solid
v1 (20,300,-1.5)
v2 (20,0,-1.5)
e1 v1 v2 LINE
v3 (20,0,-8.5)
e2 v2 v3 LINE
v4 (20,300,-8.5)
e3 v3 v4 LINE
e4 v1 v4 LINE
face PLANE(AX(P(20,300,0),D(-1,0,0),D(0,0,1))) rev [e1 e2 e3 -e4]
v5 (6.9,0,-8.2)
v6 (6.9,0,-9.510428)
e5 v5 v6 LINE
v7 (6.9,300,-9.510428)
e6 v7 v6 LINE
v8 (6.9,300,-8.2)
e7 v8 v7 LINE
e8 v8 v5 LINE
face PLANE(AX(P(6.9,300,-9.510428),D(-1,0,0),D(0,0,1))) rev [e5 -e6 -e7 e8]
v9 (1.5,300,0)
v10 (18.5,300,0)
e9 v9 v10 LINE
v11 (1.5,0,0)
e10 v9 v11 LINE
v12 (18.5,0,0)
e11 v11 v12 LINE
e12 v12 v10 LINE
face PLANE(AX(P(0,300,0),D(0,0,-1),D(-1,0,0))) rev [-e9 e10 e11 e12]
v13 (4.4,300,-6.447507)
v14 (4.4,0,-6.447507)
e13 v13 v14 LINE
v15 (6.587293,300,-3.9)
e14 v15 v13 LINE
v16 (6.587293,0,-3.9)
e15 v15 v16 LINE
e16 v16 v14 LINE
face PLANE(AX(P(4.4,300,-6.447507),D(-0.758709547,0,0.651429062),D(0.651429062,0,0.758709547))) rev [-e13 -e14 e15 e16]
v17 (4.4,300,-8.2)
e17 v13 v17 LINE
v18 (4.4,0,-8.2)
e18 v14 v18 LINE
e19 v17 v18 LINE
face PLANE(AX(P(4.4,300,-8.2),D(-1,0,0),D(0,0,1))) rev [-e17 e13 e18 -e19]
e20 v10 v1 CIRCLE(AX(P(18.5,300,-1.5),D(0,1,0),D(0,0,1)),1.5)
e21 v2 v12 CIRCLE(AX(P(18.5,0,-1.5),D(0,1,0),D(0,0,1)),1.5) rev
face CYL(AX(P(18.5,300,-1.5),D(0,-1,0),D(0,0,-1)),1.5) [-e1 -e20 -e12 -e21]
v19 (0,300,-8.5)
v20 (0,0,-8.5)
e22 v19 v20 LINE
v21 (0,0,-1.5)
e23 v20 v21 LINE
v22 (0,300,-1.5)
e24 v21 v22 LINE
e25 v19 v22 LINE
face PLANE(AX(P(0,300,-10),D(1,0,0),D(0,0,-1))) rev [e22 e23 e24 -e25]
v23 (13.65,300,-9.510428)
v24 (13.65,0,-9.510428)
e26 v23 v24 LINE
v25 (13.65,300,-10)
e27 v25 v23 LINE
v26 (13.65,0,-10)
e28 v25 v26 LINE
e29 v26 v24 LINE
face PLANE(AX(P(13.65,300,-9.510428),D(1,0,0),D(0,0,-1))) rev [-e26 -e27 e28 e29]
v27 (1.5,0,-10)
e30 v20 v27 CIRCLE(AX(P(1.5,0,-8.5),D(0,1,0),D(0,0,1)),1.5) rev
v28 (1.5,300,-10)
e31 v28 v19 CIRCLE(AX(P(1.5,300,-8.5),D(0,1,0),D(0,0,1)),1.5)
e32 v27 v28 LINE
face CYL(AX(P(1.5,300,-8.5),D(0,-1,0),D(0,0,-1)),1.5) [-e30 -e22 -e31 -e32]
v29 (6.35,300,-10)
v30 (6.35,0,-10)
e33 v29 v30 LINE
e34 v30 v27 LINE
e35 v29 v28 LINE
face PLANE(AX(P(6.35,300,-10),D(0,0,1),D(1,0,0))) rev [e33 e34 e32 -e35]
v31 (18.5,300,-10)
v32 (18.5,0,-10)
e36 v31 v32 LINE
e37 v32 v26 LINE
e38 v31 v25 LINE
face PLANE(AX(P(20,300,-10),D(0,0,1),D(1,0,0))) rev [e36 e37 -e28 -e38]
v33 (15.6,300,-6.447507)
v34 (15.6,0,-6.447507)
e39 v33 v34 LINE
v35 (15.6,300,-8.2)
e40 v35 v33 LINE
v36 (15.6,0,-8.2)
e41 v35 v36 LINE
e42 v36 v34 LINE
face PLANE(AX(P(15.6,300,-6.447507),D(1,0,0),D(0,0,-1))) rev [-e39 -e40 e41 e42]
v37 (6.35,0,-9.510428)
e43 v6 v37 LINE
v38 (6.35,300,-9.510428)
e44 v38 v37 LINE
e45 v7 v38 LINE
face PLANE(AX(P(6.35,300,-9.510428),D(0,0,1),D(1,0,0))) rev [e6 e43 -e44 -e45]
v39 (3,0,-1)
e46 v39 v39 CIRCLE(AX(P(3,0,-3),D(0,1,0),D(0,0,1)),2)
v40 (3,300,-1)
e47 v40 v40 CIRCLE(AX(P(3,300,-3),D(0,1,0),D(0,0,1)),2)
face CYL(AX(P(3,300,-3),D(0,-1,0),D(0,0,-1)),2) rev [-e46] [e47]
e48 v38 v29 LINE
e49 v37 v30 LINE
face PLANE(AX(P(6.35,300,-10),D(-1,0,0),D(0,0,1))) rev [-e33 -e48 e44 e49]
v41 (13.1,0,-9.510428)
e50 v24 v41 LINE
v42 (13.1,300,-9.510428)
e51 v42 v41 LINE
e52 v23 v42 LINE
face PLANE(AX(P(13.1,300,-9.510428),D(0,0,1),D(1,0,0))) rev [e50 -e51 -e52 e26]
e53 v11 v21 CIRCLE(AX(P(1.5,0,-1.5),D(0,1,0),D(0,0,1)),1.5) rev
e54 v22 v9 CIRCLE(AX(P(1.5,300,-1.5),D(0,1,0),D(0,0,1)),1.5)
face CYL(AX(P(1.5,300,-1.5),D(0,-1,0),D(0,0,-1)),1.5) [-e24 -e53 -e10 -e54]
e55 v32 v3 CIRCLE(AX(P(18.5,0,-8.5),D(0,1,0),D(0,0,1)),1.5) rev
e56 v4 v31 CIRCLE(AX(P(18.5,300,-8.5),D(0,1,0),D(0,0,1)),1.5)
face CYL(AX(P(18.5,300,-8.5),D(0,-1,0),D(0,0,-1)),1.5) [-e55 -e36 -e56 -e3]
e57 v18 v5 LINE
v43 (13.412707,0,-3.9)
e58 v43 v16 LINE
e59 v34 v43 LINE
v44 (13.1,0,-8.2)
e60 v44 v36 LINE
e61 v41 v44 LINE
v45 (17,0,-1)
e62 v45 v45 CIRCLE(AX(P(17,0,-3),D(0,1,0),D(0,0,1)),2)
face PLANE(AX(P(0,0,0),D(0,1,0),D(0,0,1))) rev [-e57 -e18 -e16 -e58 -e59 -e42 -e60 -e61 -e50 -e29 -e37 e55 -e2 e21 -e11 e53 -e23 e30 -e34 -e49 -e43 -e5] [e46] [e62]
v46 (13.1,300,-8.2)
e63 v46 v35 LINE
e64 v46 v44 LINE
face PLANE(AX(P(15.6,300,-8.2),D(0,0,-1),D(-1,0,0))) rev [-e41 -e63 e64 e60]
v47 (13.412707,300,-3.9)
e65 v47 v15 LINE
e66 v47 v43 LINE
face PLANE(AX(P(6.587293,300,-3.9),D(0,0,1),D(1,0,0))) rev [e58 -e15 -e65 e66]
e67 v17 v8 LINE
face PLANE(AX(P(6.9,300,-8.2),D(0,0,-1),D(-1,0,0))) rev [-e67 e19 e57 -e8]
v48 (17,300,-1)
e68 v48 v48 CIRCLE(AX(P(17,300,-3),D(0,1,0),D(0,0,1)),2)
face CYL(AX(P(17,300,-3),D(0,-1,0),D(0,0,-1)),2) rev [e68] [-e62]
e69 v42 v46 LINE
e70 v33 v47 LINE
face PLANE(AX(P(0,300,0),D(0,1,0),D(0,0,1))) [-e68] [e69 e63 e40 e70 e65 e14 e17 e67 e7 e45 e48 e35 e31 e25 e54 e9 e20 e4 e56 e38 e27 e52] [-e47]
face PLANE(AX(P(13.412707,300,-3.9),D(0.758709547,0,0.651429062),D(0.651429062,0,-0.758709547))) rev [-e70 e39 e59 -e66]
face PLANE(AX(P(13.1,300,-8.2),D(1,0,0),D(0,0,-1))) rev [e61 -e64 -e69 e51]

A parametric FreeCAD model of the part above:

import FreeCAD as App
import Part
import Sketcher


def edges_at(feature, points):
    """Names of the edges that pass closest to the given points."""
    edges = feature.Shape.Edges
    near = lambda p: min(range(len(edges)), key=lambda i: edges[i].distToShape(Part.Vertex(*p))[0])
    return sorted({f"Edge{near(p) + 1}" for p in points})

doc = App.newDocument("Part")
params = doc.addObject("Spreadsheet::Sheet", "Params")
for row, (alias, value) in enumerate([
    ("sketch1_diameter", "4 mm"),
    ("sketch1_width", "20 mm"),
    ("sketch1_height", "10 mm"),
    ("sketch1_width2", "2.5 mm"),
    ("sketch1_width3", "6.35 mm"),
    ("pad1_length", "300 mm"),
    ("fillet_radius", "1.5 mm"),
], start=1):
    params.set(f"A{row}", alias)
    params.set(f"B{row}", "=" + value)
    params.setAlias(f"B{row}", alias)

body = doc.addObject("PartDesign::Body", "Body")

sketch1 = doc.addObject("Sketcher::SketchObject", "Sketch")
body.addObject(sketch1)
sketch1.AttachmentSupport = (doc.XZ_Plane, [""])
sketch1.MapMode = "FlatFace"
sketch1.addGeometry(Part.LineSegment(App.Vector(0, 0, 0), App.Vector(20, 0, 0)), False)
sketch1.addGeometry(Part.LineSegment(App.Vector(20, 0, 0), App.Vector(20, -10, 0)), False)
sketch1.addGeometry(Part.LineSegment(App.Vector(20, -10, 0), App.Vector(13.65, -10, 0)), False)
sketch1.addGeometry(Part.LineSegment(App.Vector(13.65, -10, 0), App.Vector(13.65, -9.510428, 0)), False)
sketch1.addGeometry(Part.LineSegment(App.Vector(13.65, -9.510428, 0), App.Vector(13.1, -9.510428, 0)), False)
sketch1.addGeometry(Part.LineSegment(App.Vector(13.1, -9.510428, 0), App.Vector(13.1, -8.2, 0)), False)
sketch1.addGeometry(Part.LineSegment(App.Vector(13.1, -8.2, 0), App.Vector(15.6, -8.2, 0)), False)
sketch1.addGeometry(Part.LineSegment(App.Vector(15.6, -8.2, 0), App.Vector(15.6, -6.447507, 0)), False)
sketch1.addGeometry(Part.LineSegment(App.Vector(15.6, -6.447507, 0), App.Vector(13.412707, -3.9, 0)), False)
sketch1.addGeometry(Part.LineSegment(App.Vector(13.412707, -3.9, 0), App.Vector(6.587293, -3.9, 0)), False)
sketch1.addGeometry(Part.LineSegment(App.Vector(6.587293, -3.9, 0), App.Vector(4.4, -6.447507, 0)), False)
sketch1.addGeometry(Part.LineSegment(App.Vector(4.4, -6.447507, 0), App.Vector(4.4, -8.2, 0)), False)
sketch1.addGeometry(Part.LineSegment(App.Vector(4.4, -8.2, 0), App.Vector(6.9, -8.2, 0)), False)
sketch1.addGeometry(Part.LineSegment(App.Vector(6.9, -8.2, 0), App.Vector(6.9, -9.510428, 0)), False)
sketch1.addGeometry(Part.LineSegment(App.Vector(6.9, -9.510428, 0), App.Vector(6.35, -9.510428, 0)), False)
sketch1.addGeometry(Part.LineSegment(App.Vector(6.35, -9.510428, 0), App.Vector(6.35, -10, 0)), False)
sketch1.addGeometry(Part.LineSegment(App.Vector(6.35, -10, 0), App.Vector(0, -10, 0)), False)
sketch1.addGeometry(Part.LineSegment(App.Vector(0, -10, 0), App.Vector(0, 0, 0)), False)
sketch1.addGeometry(Part.Circle(App.Vector(3, -3, 0), App.Vector(0, 0, 1), 2), False)
sketch1.addGeometry(Part.Circle(App.Vector(17, -3, 0), App.Vector(0, 0, 1), 2), False)
sketch1.addConstraint(Sketcher.Constraint("Coincident", 0, 2, 1, 1))
sketch1.addConstraint(Sketcher.Constraint("Coincident", 1, 2, 2, 1))
sketch1.addConstraint(Sketcher.Constraint("Coincident", 2, 2, 3, 1))
sketch1.addConstraint(Sketcher.Constraint("Coincident", 3, 2, 4, 1))
sketch1.addConstraint(Sketcher.Constraint("Coincident", 4, 2, 5, 1))
sketch1.addConstraint(Sketcher.Constraint("Coincident", 5, 2, 6, 1))
sketch1.addConstraint(Sketcher.Constraint("Coincident", 6, 2, 7, 1))
sketch1.addConstraint(Sketcher.Constraint("Coincident", 7, 2, 8, 1))
sketch1.addConstraint(Sketcher.Constraint("Coincident", 8, 2, 9, 1))
sketch1.addConstraint(Sketcher.Constraint("Coincident", 9, 2, 10, 1))
sketch1.addConstraint(Sketcher.Constraint("Coincident", 10, 2, 11, 1))
sketch1.addConstraint(Sketcher.Constraint("Coincident", 11, 2, 12, 1))
sketch1.addConstraint(Sketcher.Constraint("Coincident", 12, 2, 13, 1))
sketch1.addConstraint(Sketcher.Constraint("Coincident", 13, 2, 14, 1))
sketch1.addConstraint(Sketcher.Constraint("Coincident", 14, 2, 15, 1))
sketch1.addConstraint(Sketcher.Constraint("Coincident", 15, 2, 16, 1))
sketch1.addConstraint(Sketcher.Constraint("Coincident", 16, 2, 17, 1))
sketch1.addConstraint(Sketcher.Constraint("Coincident", 17, 2, 0, 1))
sketch1.addConstraint(Sketcher.Constraint("Horizontal", 0))
sketch1.addConstraint(Sketcher.Constraint("Vertical", 1))
sketch1.addConstraint(Sketcher.Constraint("Horizontal", 2))
sketch1.addConstraint(Sketcher.Constraint("Vertical", 3))
sketch1.addConstraint(Sketcher.Constraint("Horizontal", 4))
sketch1.addConstraint(Sketcher.Constraint("Vertical", 5))
sketch1.addConstraint(Sketcher.Constraint("Horizontal", 6))
sketch1.addConstraint(Sketcher.Constraint("Vertical", 7))
sketch1.addConstraint(Sketcher.Constraint("Horizontal", 9))
sketch1.addConstraint(Sketcher.Constraint("Vertical", 11))
sketch1.addConstraint(Sketcher.Constraint("Horizontal", 12))
sketch1.addConstraint(Sketcher.Constraint("Vertical", 13))
sketch1.addConstraint(Sketcher.Constraint("Horizontal", 14))
sketch1.addConstraint(Sketcher.Constraint("Vertical", 15))
sketch1.addConstraint(Sketcher.Constraint("Horizontal", 16))
sketch1.addConstraint(Sketcher.Constraint("Vertical", 17))
sketch1.addConstraint(Sketcher.Constraint("Coincident", 17, 2, -1, 1))
sketch1.addConstraint(Sketcher.Constraint("Equal", 18, 19))
sketch1.addConstraint(Sketcher.Constraint("Horizontal", 18, 3, 19, 3))
sketch1.addConstraint(Sketcher.Constraint("Horizontal", 7, 2, 10, 2))
sketch1.addConstraint(Sketcher.Constraint("Horizontal", 6, 2, 11, 2))
sketch1.addConstraint(Sketcher.Constraint("Horizontal", 4, 2, 13, 2))
sketch1.addConstraint(Sketcher.Constraint("Horizontal", 2, 2, 15, 2))
sketch1.addConstraint(Sketcher.Constraint("Equal", 6, 12))
sketch1.addConstraint(Sketcher.Constraint("Equal", 4, 14))
sketch1.addConstraint(Sketcher.Constraint("Equal", 2, 16))
sketch1.addConstraint(Sketcher.Constraint("Equal", 8, 10))
sketch1.addConstraint(Sketcher.Constraint("Diameter", 18, 4.0))
sketch1.addConstraint(Sketcher.Constraint("DistanceX", 0, 1, 0, 2, 20.0))
sketch1.addConstraint(Sketcher.Constraint("DistanceY", 1, 2, 1, 1, 10.0))
sketch1.addConstraint(Sketcher.Constraint("DistanceX", 6, 1, 6, 2, 2.5))
sketch1.addConstraint(Sketcher.Constraint("DistanceX", -1, 1, 18, 3, 3.0))
sketch1.addConstraint(Sketcher.Constraint("DistanceY", 18, 3, -1, 1, 3.0))
sketch1.addConstraint(Sketcher.Constraint("DistanceX", -1, 1, 19, 3, 17.0))
sketch1.addConstraint(Sketcher.Constraint("DistanceX", 2, 2, 2, 1, 6.35))
sketch1.addConstraint(Sketcher.Constraint("DistanceX", 4, 2, 4, 1, 0.55))
sketch1.addConstraint(Sketcher.Constraint("DistanceY", 5, 2, -1, 1, 8.2))
sketch1.addConstraint(Sketcher.Constraint("DistanceY", 8, 2, -1, 1, 3.9))
sketch1.addConstraint(Sketcher.Constraint("DistanceX", 9, 2, 9, 1, 6.825414))
sketch1.addConstraint(Sketcher.Constraint("DistanceY", 3, 1, 3, 2, 0.489572))
sketch1.addConstraint(Sketcher.Constraint("DistanceY", 7, 1, 7, 2, 1.752493))
sketch1.setExpression("Constraints[45]", "Params.sketch1_diameter")
sketch1.setExpression("Constraints[46]", "Params.sketch1_width")
sketch1.setExpression("Constraints[47]", "Params.sketch1_height")
sketch1.setExpression("Constraints[48]", "Params.sketch1_width2")
sketch1.setExpression("Constraints[52]", "Params.sketch1_width3")
pad1 = doc.addObject("PartDesign::Pad", "Pad")
body.addObject(pad1)
pad1.Profile = sketch1
pad1.setExpression("Length", "Params.pad1_length")
pad1.Reversed = True
doc.recompute()

fillet = doc.addObject("PartDesign::Fillet", "Fillet")
body.addObject(fillet)
fillet.Base = (pad1, edges_at(pad1, [
    (0, 150, -10),
    (20, 150, -10),
    (20, 150, 0),
    (0, 150, 0),
]))
fillet.setExpression("Radius", "Params.fillet_radius")

doc.recompute()
